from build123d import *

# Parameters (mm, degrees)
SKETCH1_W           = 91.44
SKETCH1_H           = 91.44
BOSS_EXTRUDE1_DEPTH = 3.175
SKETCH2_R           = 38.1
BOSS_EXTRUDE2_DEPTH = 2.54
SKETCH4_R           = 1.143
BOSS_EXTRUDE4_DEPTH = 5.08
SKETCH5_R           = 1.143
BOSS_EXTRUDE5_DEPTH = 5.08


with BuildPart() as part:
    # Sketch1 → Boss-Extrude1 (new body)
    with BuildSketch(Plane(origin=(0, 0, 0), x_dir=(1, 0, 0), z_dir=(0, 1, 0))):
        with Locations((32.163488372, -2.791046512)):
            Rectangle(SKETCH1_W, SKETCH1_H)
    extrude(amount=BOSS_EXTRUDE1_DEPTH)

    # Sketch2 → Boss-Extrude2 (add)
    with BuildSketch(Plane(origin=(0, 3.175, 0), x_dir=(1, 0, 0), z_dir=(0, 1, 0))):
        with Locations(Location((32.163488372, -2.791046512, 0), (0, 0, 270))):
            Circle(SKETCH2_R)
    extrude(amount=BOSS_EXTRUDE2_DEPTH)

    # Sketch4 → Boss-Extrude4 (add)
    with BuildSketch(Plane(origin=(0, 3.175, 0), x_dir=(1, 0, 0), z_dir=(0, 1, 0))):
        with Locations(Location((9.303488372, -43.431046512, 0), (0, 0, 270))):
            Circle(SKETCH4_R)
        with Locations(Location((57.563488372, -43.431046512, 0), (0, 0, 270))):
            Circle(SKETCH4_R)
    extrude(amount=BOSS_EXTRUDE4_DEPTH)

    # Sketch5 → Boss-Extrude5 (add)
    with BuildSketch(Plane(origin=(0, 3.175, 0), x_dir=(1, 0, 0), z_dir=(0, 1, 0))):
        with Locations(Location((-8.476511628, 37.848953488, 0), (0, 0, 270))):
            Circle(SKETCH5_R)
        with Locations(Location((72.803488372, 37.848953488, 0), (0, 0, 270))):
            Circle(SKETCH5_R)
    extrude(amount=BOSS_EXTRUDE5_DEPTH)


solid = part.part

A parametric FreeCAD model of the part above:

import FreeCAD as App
import Part
import Sketcher
from FreeCAD import Vector
Q = App.Units.Quantity

doc = App.newDocument("Part")
params = doc.addObject("Spreadsheet::Sheet", "Params")
for row, (alias, value) in enumerate([
    ("sketch1_width", "3.6 in"),
    ("pad1_length", "0.125 in"),
    ("sketch2_diameter", "3 in"),
    ("pad2_length", "0.1 in"),
    ("sketch3_diameter", "0.09 in"),
    ("pad3_length", "0.2 in"),
    ("sketch4_diameter", "0.09 in"),
    ("pad4_length", "0.2 in"),
], start=1):
    params.set(f"A{row}", alias)
    params.set(f"B{row}", "=" + value)
    params.setAlias(f"B{row}", alias)

body = doc.addObject("PartDesign::Body", "Body")

sketch1 = body.newObject("Sketcher::SketchObject", "Sketch")
sketch1.AttachmentSupport = (doc.getObject("XZ_Plane"), [""])
sketch1.MapMode = "FlatFace"
sketch1.addGeometry([
    Part.LineSegment(Vector(-14, -43, 0), Vector(-14, 49, 0)),
    Part.LineSegment(Vector(-14, 49, 0), Vector(78, 49, 0)),
    Part.LineSegment(Vector(78, 49, 0), Vector(78, -43, 0)),
    Part.LineSegment(Vector(78, -43, 0), Vector(-14, -43, 0)),
], False)
sketch1.addConstraint([
    Sketcher.Constraint("Coincident", 0, 2, 1, 1),
    Sketcher.Constraint("Coincident", 1, 2, 2, 1),
    Sketcher.Constraint("Coincident", 2, 2, 3, 1),
    Sketcher.Constraint("Coincident", 3, 2, 0, 1),
    Sketcher.Constraint("Vertical", 0),
    Sketcher.Constraint("Horizontal", 1),
    Sketcher.Constraint("Vertical", 2),
    Sketcher.Constraint("Horizontal", 3),
    Sketcher.Constraint("Equal", 3, 0),
    Sketcher.Constraint("DistanceX", 1, 1, 1, 2, Q("3.6 in")),
    Sketcher.Constraint("DistanceX", 0, 2, -1, 1, 13.556512),
    Sketcher.Constraint("DistanceY", -1, 1, 0, 2, 48.511047),
])
sketch1.setExpression("Constraints[9]", "Params.sketch1_width")
pad1 = body.newObject("PartDesign::Pad", "Pad")
pad1.Profile = sketch1
pad1.setExpression("Length", "Params.pad1_length")
pad1.Reversed = True

sketch2 = body.newObject("Sketcher::SketchObject", "Sketch001")
sketch2.AttachmentSupport = (doc.getObject("XZ_Plane"), [""])
sketch2.MapMode = "FlatFace"
sketch2.AttachmentOffset = App.Placement(Vector(0, 0, -0.125 * 25.4), App.Rotation())
sketch2.addGeometry(Part.Circle(Vector(32, 3, 0), Vector(0, 0, 1), 38), False)
sketch2.addConstraint([
    Sketcher.Constraint("Diameter", 0, Q("3 in")),
    Sketcher.Constraint("DistanceX", -1, 1, 0, 3, 32.163488),
    Sketcher.Constraint("DistanceY", -1, 1, 0, 3, 2.791047),
])
sketch2.setExpression("Constraints[0]", "Params.sketch2_diameter")
pad2 = body.newObject("PartDesign::Pad", "Pad001")
pad2.Profile = sketch2
pad2.setExpression("Length", "Params.pad2_length")
pad2.Reversed = True

sketch3 = body.newObject("Sketcher::SketchObject", "Sketch002")
sketch3.AttachmentSupport = (doc.getObject("XZ_Plane"), [""])
sketch3.MapMode = "FlatFace"
sketch3.AttachmentOffset = App.Placement(Vector(0, 0, -0.125 * 25.4), App.Rotation())
sketch3.addGeometry([
    Part.Circle(Vector(9.3, 43.4, 0), Vector(0, 0, 1), 1.1),
    Part.Circle(Vector(57.6, 43.4, 0), Vector(0, 0, 1), 1.1),
], False)
sketch3.addConstraint([
    Sketcher.Constraint("Equal", 0, 1),
    Sketcher.Constraint("Horizontal", 0, 3, 1, 3),
    Sketcher.Constraint("Diameter", 0, Q("0.09 in")),
    Sketcher.Constraint("DistanceX", 0, 3, 1, 3, Q("1.9 in")),
    Sketcher.Constraint("DistanceX", -1, 1, 0, 3, 9.303488),
    Sketcher.Constraint("DistanceY", -1, 1, 0, 3, 43.431047),
])
sketch3.setExpression("Constraints[2]", "Params.sketch3_diameter")
pad3 = body.newObject("PartDesign::Pad", "Pad002")
pad3.Profile = sketch3
pad3.setExpression("Length", "Params.pad3_length")
pad3.Reversed = True

sketch4 = body.newObject("Sketcher::SketchObject", "Sketch003")
sketch4.AttachmentSupport = (doc.getObject("XZ_Plane"), [""])
sketch4.MapMode = "FlatFace"
sketch4.AttachmentOffset = App.Placement(Vector(0, 0, -0.125 * 25.4), App.Rotation())
sketch4.addGeometry([
    Part.Circle(Vector(-8.5, -37.8, 0), Vector(0, 0, 1), 1.1),
    Part.Circle(Vector(72.8, -37.8, 0), Vector(0, 0, 1), 1.1),
], False)
sketch4.addConstraint([
    Sketcher.Constraint("Equal", 0, 1),
    Sketcher.Constraint("Horizontal", 0, 3, 1, 3),
    Sketcher.Constraint("Diameter", 0, Q("0.09 in")),
    Sketcher.Constraint("DistanceX", 0, 3, 1, 3, Q("3.2 in")),
    Sketcher.Constraint("DistanceX", 0, 3, -1, 1, 8.476512),
    Sketcher.Constraint("DistanceY", 0, 3, -1, 1, 37.848953),
])
sketch4.setExpression("Constraints[2]", "Params.sketch4_diameter")
pad4 = body.newObject("PartDesign::Pad", "Pad003")
pad4.Profile = sketch4
pad4.setExpression("Length", "Params.pad4_length")
pad4.Reversed = True

doc.recompute()
